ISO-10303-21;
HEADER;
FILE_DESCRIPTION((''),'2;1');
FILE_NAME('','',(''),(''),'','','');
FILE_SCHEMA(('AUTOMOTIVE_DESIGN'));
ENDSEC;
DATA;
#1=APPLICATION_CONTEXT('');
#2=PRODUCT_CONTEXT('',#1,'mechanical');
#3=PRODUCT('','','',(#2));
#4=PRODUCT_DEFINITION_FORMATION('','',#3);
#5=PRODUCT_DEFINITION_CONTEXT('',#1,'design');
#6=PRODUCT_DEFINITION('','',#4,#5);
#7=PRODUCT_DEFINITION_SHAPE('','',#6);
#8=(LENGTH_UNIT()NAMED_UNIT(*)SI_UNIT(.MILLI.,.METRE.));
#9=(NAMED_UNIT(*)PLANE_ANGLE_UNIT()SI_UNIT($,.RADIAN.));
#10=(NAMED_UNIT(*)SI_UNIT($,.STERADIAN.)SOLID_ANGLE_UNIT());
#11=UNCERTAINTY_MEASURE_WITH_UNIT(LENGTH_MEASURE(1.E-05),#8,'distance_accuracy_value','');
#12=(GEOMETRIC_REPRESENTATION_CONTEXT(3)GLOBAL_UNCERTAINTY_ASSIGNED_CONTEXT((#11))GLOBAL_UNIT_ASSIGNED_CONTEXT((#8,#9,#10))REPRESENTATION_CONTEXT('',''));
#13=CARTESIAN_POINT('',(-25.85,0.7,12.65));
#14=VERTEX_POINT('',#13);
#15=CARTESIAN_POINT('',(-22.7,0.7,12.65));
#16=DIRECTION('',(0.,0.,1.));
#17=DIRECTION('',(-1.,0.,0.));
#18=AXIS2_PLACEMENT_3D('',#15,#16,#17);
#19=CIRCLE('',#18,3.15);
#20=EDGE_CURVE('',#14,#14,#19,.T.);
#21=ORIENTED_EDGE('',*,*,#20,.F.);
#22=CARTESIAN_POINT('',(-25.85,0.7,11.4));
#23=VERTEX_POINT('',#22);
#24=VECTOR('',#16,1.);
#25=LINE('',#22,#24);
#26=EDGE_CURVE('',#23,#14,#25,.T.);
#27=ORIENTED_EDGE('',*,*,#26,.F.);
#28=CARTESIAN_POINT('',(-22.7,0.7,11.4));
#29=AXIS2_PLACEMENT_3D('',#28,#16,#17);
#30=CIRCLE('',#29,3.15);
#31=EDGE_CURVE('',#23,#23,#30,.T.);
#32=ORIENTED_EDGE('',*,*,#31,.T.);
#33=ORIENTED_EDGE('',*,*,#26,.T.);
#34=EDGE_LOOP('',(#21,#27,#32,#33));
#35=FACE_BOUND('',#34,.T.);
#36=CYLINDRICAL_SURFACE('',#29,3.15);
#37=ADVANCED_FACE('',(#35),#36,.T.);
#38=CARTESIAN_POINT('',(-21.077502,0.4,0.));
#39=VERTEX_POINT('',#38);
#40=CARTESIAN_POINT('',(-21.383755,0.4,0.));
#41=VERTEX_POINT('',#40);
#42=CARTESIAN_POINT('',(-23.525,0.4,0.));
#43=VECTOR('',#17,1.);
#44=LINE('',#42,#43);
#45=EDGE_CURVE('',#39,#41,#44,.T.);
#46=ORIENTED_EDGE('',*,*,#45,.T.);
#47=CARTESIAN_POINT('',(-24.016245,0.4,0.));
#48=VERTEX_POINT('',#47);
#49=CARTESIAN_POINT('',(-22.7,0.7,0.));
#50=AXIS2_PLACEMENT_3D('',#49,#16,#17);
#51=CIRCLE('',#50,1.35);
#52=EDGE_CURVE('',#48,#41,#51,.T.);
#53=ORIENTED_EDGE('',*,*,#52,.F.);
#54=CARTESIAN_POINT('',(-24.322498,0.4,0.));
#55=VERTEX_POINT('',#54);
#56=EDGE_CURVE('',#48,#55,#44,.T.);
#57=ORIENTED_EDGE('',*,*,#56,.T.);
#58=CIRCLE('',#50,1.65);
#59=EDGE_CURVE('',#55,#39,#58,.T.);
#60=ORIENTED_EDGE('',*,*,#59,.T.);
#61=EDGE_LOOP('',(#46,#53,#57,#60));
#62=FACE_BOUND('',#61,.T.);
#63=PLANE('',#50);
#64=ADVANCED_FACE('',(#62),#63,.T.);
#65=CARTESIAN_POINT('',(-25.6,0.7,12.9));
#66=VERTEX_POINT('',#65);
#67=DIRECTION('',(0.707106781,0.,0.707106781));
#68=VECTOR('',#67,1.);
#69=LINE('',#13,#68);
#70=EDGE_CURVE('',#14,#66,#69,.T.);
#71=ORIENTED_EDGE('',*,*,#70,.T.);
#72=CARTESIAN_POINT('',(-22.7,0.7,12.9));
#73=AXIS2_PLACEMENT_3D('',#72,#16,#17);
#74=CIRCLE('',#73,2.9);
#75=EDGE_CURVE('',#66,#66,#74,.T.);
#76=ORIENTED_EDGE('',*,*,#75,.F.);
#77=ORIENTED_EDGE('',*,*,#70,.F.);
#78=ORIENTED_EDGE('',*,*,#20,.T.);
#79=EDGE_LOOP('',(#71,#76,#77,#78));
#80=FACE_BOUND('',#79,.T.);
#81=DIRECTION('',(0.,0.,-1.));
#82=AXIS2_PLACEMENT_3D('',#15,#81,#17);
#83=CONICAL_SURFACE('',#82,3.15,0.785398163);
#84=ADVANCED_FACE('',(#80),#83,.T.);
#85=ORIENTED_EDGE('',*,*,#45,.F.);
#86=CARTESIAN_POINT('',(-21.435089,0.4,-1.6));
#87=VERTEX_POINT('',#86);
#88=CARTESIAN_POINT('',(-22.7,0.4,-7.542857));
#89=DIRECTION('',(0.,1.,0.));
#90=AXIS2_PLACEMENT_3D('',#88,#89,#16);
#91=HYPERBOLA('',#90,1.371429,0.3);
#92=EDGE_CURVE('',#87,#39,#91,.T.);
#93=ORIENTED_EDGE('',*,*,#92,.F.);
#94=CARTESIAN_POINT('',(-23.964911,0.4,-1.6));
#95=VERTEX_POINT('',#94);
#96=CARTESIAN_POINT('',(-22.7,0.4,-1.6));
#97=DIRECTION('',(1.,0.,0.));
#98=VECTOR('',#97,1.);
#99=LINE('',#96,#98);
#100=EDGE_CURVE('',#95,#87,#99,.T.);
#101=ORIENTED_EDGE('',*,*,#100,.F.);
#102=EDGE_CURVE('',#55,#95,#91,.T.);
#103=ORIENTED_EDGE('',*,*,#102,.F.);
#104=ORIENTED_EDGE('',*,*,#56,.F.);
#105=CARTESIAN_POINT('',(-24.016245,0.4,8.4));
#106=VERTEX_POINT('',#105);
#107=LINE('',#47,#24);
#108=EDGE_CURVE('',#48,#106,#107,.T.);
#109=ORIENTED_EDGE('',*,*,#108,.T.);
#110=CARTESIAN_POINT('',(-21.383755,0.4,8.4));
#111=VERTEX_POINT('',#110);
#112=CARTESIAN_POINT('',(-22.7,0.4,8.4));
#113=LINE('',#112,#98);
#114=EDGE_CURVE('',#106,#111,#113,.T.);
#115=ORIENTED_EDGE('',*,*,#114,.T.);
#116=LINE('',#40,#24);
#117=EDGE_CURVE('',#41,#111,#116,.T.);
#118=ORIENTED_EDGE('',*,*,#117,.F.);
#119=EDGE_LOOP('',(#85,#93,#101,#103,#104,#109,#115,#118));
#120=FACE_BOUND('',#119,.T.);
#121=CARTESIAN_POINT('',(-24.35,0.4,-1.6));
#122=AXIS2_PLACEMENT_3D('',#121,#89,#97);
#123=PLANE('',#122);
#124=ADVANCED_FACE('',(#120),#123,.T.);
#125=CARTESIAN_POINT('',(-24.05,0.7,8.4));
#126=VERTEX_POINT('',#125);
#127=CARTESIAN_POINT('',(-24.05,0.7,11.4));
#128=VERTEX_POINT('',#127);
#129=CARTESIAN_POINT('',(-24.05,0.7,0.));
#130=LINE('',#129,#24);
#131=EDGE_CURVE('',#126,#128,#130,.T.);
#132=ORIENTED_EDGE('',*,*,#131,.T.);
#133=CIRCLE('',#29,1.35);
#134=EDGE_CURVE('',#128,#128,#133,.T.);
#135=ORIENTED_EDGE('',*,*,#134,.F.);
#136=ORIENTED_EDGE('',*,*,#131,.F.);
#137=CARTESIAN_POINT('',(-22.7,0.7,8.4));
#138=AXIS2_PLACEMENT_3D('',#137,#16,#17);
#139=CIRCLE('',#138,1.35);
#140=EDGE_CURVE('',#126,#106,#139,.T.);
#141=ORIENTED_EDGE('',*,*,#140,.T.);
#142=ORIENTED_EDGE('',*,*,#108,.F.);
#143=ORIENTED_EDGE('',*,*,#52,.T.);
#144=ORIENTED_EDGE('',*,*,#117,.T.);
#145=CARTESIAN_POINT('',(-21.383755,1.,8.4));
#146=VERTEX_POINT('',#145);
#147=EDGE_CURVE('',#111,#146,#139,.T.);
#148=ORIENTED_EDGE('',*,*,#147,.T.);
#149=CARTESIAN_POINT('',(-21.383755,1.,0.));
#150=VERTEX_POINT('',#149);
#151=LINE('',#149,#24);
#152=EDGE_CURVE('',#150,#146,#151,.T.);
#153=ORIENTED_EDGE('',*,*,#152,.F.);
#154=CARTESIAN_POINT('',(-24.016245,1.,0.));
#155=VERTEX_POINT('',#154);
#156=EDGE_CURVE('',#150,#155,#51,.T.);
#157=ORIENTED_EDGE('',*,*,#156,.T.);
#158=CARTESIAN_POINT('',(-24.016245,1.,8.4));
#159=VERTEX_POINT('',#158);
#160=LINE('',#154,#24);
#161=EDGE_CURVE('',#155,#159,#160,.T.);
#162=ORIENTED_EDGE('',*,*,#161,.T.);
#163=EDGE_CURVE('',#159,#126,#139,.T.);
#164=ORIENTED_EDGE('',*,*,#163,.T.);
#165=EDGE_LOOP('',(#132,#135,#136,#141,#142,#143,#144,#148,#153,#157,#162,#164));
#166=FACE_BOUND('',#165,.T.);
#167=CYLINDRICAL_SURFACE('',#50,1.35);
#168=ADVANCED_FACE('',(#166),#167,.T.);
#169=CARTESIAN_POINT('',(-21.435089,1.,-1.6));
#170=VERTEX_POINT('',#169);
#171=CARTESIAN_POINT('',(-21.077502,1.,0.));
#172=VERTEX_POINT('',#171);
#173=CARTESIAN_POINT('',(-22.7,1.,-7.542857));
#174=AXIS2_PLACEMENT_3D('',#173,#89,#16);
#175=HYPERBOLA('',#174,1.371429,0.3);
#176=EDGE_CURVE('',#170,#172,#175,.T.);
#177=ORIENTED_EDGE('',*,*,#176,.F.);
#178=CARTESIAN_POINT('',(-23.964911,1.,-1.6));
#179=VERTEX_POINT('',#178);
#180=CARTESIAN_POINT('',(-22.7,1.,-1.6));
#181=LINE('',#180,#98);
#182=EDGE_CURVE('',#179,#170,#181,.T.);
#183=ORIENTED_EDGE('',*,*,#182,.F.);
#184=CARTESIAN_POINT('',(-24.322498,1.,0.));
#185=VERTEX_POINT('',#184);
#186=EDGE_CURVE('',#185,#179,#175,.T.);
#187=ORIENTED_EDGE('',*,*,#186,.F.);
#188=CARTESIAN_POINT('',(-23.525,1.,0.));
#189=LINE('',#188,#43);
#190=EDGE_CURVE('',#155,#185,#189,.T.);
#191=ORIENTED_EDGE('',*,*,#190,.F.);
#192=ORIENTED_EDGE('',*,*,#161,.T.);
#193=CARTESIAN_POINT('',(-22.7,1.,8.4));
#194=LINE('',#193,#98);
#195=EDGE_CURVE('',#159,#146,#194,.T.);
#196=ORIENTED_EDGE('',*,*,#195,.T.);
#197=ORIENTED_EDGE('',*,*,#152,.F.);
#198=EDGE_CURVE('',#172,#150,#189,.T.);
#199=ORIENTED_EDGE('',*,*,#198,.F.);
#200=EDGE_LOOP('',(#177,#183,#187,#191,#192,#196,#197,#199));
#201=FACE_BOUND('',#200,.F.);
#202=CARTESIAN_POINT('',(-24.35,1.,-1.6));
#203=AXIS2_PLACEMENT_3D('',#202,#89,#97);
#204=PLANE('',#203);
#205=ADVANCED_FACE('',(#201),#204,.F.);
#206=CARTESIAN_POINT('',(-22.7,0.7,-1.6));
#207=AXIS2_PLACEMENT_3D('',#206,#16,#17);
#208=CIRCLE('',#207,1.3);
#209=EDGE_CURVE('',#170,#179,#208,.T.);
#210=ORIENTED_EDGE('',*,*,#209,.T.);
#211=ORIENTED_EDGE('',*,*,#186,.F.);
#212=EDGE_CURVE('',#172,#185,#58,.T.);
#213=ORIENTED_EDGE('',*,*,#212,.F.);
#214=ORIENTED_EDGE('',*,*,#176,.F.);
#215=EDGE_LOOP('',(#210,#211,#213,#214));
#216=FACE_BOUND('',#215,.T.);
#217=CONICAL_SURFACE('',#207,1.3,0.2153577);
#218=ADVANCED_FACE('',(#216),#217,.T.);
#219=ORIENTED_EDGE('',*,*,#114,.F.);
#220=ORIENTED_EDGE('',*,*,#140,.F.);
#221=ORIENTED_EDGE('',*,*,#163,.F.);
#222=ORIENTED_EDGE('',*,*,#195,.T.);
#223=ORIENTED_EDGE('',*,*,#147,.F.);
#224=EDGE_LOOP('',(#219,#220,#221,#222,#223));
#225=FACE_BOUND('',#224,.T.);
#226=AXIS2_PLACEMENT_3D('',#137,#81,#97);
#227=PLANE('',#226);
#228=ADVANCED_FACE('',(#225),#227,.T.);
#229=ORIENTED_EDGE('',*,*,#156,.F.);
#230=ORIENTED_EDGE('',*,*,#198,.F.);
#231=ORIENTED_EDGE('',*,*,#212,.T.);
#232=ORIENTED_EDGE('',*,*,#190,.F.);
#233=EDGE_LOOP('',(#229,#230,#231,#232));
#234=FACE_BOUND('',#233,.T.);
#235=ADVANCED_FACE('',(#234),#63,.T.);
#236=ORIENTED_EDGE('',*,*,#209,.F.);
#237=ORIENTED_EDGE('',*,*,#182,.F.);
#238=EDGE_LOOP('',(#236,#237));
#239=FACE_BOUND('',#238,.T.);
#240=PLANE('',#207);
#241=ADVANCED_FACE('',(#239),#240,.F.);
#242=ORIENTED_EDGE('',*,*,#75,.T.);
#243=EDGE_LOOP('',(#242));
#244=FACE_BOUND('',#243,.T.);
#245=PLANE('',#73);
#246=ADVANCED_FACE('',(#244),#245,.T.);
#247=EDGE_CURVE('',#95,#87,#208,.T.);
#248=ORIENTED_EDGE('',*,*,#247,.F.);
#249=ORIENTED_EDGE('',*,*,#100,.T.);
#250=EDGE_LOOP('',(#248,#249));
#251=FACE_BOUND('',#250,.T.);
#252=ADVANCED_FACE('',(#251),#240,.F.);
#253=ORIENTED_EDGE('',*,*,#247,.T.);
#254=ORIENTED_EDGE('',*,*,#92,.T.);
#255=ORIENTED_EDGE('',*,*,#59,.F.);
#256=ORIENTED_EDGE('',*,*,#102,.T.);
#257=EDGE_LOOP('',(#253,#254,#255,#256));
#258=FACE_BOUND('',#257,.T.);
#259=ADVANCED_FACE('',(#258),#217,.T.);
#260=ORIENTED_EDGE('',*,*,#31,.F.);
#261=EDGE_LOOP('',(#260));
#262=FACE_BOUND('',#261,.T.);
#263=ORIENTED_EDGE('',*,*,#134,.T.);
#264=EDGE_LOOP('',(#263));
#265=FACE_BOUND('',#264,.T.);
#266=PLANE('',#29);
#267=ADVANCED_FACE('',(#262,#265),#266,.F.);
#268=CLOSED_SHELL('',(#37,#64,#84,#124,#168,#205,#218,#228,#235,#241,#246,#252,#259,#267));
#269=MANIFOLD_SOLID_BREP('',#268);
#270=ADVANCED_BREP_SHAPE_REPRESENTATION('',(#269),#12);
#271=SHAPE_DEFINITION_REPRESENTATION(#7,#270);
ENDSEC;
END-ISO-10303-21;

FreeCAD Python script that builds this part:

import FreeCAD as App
import Part
import Sketcher
Q = App.Units.Quantity


def edges_at(feature, points):
    """Names of the edges that pass closest to the given points."""
    edges = feature.Shape.Edges
    near = lambda p: min(range(len(edges)), key=lambda i: edges[i].distToShape(Part.Vertex(*p))[0])
    return sorted({f"Edge{near(p) + 1}" for p in points})

doc = App.newDocument("Part")
body = doc.addObject("PartDesign::Body", "Body")

# Sketch on XZ plane
sketch1 = body.newObject("Sketcher::SketchObject", "Sketch")
sketch1.AttachmentSupport = (doc.getObject("XZ_Plane"), [""])
sketch1.MapMode = "FlatFace"
sketch1.addGeometry([
    Part.LineSegment(App.Vector(-1.35, 13, 0), App.Vector(-1.35, 1.6, 0)),  # 0
    Part.LineSegment(App.Vector(-1.35, 1.6, 0), App.Vector(-1.65, 1.6, 0)),  # 1
    Part.LineSegment(App.Vector(-1.65, 1.6, 0), App.Vector(-1.3, 0, 0)),  # 2
    Part.LineSegment(App.Vector(-1.3, 0, 0), App.Vector(0, 0, 0)),  # 3
    Part.LineSegment(App.Vector(0, 0, 0), App.Vector(0, 14.5, 0)),  # 4
    Part.LineSegment(App.Vector(0, 14.5, 0), App.Vector(-3.15, 14.5, 0)),  # 5
    Part.LineSegment(App.Vector(-3.15, 14.5, 0), App.Vector(-3.15, 13, 0)),  # 6
    Part.LineSegment(App.Vector(-3.15, 13, 0), App.Vector(-1.35, 13, 0)),  # 7
], False)
sketch1.addConstraint([
    Sketcher.Constraint("Coincident", 0, 2, 1, 1),
    Sketcher.Constraint("Coincident", 1, 2, 2, 1),
    Sketcher.Constraint("Coincident", 2, 2, 3, 1),
    Sketcher.Constraint("Coincident", 3, 2, 4, 1),
    Sketcher.Constraint("Coincident", 4, 2, 5, 1),
    Sketcher.Constraint("Coincident", 5, 2, 6, 1),
    Sketcher.Constraint("Coincident", 6, 2, 7, 1),
    Sketcher.Constraint("Coincident", 7, 2, 0, 1),
    Sketcher.Constraint("Vertical", 0),
    Sketcher.Constraint("Horizontal", 1),
    Sketcher.Constraint("Horizontal", 3),
    Sketcher.Constraint("Vertical", 4),
    Sketcher.Constraint("Horizontal", 5),
    Sketcher.Constraint("Vertical", 6),
    Sketcher.Constraint("Horizontal", 7),
    Sketcher.Constraint("Coincident", 3, 2, -1, 1),
    Sketcher.Constraint("DistanceX", 1, 2, 1, 1, Q("0.3 mm")),
    Sketcher.Constraint("DistanceX", 3, 1, 3, 2, Q("1.3 mm")),
    Sketcher.Constraint("DistanceX", 7, 1, 7, 2, Q("1.8 mm")),
    Sketcher.Constraint("DistanceY", 0, 2, 0, 1, Q("11.4 mm")),
    Sketcher.Constraint("DistanceY", 4, 1, 4, 2, Q("14.5 mm")),
    Sketcher.Constraint("DistanceY", 6, 2, 6, 1, Q("1.5 mm")),
    Sketcher.Constraint("DistanceX", 5, 2, 5, 1, Q("3.15 mm")),
])
revolution = body.newObject("PartDesign::Revolution", "Revolution")
revolution.Profile = sketch1
revolution.ReferenceAxis = (sketch1, ["V_Axis"])
revolution.Angle = 360
doc.recompute()

chamfer = body.newObject("PartDesign::Chamfer", "Chamfer")
chamfer.Base = (revolution, edges_at(revolution, [(3.15, 0, 14.5)]))
chamfer.Size = 0.25

# Sketch on XY plane
sketch2 = body.newObject("Sketcher::SketchObject", "Sketch001")
sketch2.AttachmentSupport = (doc.getObject("XY_Plane"), [""])
sketch2.MapMode = "FlatFace"
sketch2.addGeometry([
    Part.LineSegment(App.Vector(-1.6, -0.3, 0), App.Vector(-1.6, 0.3, 0)),
    Part.LineSegment(App.Vector(-1.6, 0.3, 0), App.Vector(1.6, 0.3, 0)),
    Part.LineSegment(App.Vector(1.6, 0.3, 0), App.Vector(1.6, -0.3, 0)),
    Part.LineSegment(App.Vector(1.6, -0.3, 0), App.Vector(-1.6, -0.3, 0)),
], False)
sketch2.addConstraint([
    Sketcher.Constraint("Coincident", 0, 2, 1, 1),
    Sketcher.Constraint("Coincident", 1, 2, 2, 1),
    Sketcher.Constraint("Coincident", 2, 2, 3, 1),
    Sketcher.Constraint("Coincident", 3, 2, 0, 1),
    Sketcher.Constraint("Vertical", 0),
    Sketcher.Constraint("Horizontal", 1),
    Sketcher.Constraint("Vertical", 2),
    Sketcher.Constraint("Horizontal", 3),
    Sketcher.Constraint("Symmetric", 0, 2, 2, 2, -1, 1),
    Sketcher.Constraint("DistanceX", 1, 1, 1, 2, Q("3.3 mm")),
    Sketcher.Constraint("DistanceY", 0, 1, 0, 2, Q("0.6 mm")),
])
pocket1 = body.newObject("PartDesign::Pocket", "Pocket")
pocket1.Profile = sketch2
pocket1.Length = 10
pocket1.Reversed = True
body2 = doc.addObject("PartDesign::Body", "Body001")
doc.recompute()

body.Placement = App.Placement(App.Vector(-22.7, 0.7, -1.6), App.Rotation(App.Vector(0, 0, 1), 0))
boolean = body2.newObject("PartDesign::Boolean", "Boolean")
boolean.Type = "Fuse"
boolean.addObjects([body])

doc.recompute()
